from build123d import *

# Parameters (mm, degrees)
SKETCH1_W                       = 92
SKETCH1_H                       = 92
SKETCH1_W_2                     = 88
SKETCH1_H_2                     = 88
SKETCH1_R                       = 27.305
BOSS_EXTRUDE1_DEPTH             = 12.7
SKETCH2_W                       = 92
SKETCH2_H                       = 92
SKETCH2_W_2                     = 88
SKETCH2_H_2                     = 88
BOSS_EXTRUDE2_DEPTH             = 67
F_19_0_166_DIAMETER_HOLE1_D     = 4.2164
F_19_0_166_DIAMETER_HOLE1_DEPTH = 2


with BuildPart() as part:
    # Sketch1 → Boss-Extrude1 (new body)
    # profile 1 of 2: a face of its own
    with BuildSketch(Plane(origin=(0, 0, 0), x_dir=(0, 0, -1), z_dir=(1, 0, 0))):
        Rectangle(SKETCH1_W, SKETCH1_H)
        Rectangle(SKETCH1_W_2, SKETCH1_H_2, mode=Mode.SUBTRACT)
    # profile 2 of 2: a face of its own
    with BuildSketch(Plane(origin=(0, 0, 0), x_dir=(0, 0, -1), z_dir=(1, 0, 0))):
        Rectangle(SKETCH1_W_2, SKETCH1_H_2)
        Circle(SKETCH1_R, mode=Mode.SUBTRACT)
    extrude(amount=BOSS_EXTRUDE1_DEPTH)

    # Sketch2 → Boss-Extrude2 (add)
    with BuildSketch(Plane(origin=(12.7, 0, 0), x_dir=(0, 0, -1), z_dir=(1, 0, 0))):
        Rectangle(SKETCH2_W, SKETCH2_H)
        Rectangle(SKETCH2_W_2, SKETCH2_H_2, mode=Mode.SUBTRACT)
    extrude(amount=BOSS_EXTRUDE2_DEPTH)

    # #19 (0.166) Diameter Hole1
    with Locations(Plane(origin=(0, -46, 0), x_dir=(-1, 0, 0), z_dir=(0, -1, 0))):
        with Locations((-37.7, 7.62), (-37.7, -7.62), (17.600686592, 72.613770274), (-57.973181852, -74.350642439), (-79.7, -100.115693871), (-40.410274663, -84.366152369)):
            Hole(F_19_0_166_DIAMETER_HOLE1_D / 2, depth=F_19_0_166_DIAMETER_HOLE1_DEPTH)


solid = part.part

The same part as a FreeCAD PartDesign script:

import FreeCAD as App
import Part
import Sketcher
from FreeCAD import Vector

doc = App.newDocument("Part")
body = doc.addObject("PartDesign::Body", "Body")

sketch1 = doc.addObject("Sketcher::SketchObject", "Sketch")
body.addObject(sketch1)
sketch1.AttachmentSupport = (doc.YZ_Plane, [""])
sketch1.MapMode = "FlatFace"
sketch1.addGeometry([
    Part.LineSegment(Vector(46, 46, 0), Vector(-46, 46, 0)),
    Part.LineSegment(Vector(-46, 46, 0), Vector(-46, -46, 0)),
    Part.LineSegment(Vector(-46, -46, 0), Vector(46, -46, 0)),
    Part.LineSegment(Vector(46, -46, 0), Vector(46, 46, 0)),
    Part.Circle(Vector(0, 0, 0), Vector(0, 0, 1), 27),
], False)
sketch1.addConstraint([
    Sketcher.Constraint("Coincident", 0, 2, 1, 1),
    Sketcher.Constraint("Coincident", 1, 2, 2, 1),
    Sketcher.Constraint("Coincident", 2, 2, 3, 1),
    Sketcher.Constraint("Coincident", 3, 2, 0, 1),
    Sketcher.Constraint("Horizontal", 0),
    Sketcher.Constraint("Vertical", 1),
    Sketcher.Constraint("Horizontal", 2),
    Sketcher.Constraint("Vertical", 3),
    Sketcher.Constraint("Coincident", 4, 3, -1, 1),
    Sketcher.Constraint("Symmetric", 0, 2, 2, 2, -1, 1),
    Sketcher.Constraint("Equal", 2, 1),
    Sketcher.Constraint("Diameter", 4, 54.61),
    Sketcher.Constraint("DistanceX", 0, 2, 0, 1, 92.0),
])
pad1 = doc.addObject("PartDesign::Pad", "Pad")
body.addObject(pad1)
pad1.Profile = sketch1
pad1.Length = 12.7

sketch2 = doc.addObject("Sketcher::SketchObject", "Sketch001")
body.addObject(sketch2)
sketch2.AttachmentSupport = (doc.YZ_Plane, [""])
sketch2.MapMode = "FlatFace"
sketch2.AttachmentOffset = App.Placement(Vector(0, 0, 12.7), App.Rotation())
sketch2.addGeometry([
    Part.LineSegment(Vector(46, 46, 0), Vector(-46, 46, 0)),
    Part.LineSegment(Vector(-46, 46, 0), Vector(-46, -46, 0)),
    Part.LineSegment(Vector(-46, -46, 0), Vector(46, -46, 0)),
    Part.LineSegment(Vector(46, -46, 0), Vector(46, 46, 0)),
    Part.LineSegment(Vector(-44, -44, 0), Vector(-44, 44, 0)),
    Part.LineSegment(Vector(-44, 44, 0), Vector(44, 44, 0)),
    Part.LineSegment(Vector(44, 44, 0), Vector(44, -44, 0)),
    Part.LineSegment(Vector(44, -44, 0), Vector(-44, -44, 0)),
], False)
sketch2.addConstraint([
    Sketcher.Constraint("Coincident", 0, 2, 1, 1),
    Sketcher.Constraint("Coincident", 1, 2, 2, 1),
    Sketcher.Constraint("Coincident", 2, 2, 3, 1),
    Sketcher.Constraint("Coincident", 3, 2, 0, 1),
    Sketcher.Constraint("Coincident", 4, 2, 5, 1),
    Sketcher.Constraint("Coincident", 5, 2, 6, 1),
    Sketcher.Constraint("Coincident", 6, 2, 7, 1),
    Sketcher.Constraint("Coincident", 7, 2, 4, 1),
    Sketcher.Constraint("Horizontal", 0),
    Sketcher.Constraint("Vertical", 1),
    Sketcher.Constraint("Horizontal", 2),
    Sketcher.Constraint("Vertical", 3),
    Sketcher.Constraint("Vertical", 4),
    Sketcher.Constraint("Horizontal", 5),
    Sketcher.Constraint("Vertical", 6),
    Sketcher.Constraint("Horizontal", 7),
    Sketcher.Constraint("Symmetric", 0, 2, 2, 2, -1, 1),
    Sketcher.Constraint("Symmetric", 4, 2, 6, 2, -1, 1),
    Sketcher.Constraint("Equal", 2, 1),
    Sketcher.Constraint("Equal", 7, 4),
    Sketcher.Constraint("DistanceX", 0, 2, 0, 1, 92.0),
    Sketcher.Constraint("DistanceX", 5, 1, 5, 2, 88.0),
])
pad2 = doc.addObject("PartDesign::Pad", "Pad001")
body.addObject(pad2)
pad2.Profile = sketch2
pad2.Length = 67

sketch3 = doc.addObject("Sketcher::SketchObject", "Sketch002")
body.addObject(sketch3)
sketch3.AttachmentSupport = (doc.XZ_Plane, [""])
sketch3.MapMode = "FlatFace"
sketch3.AttachmentOffset = App.Placement(Vector(0, 0, 46), App.Rotation())
sketch3.addGeometry([
    Part.Circle(Vector(37.7, -7.6, 0), Vector(0, 0, 1), 2.1),
    Part.Circle(Vector(37.7, 7.6, 0), Vector(0, 0, 1), 2.1),
    Part.Circle(Vector(-17.6, -72.6, 0), Vector(0, 0, 1), 2.1),
    Part.Circle(Vector(58, 74.4, 0), Vector(0, 0, 1), 2.1),
    Part.Circle(Vector(79.7, 100.1, 0), Vector(0, 0, 1), 2.1),
    Part.Circle(Vector(40.4, 84.4, 0), Vector(0, 0, 1), 2.1),
], False)
sketch3.addConstraint([
    Sketcher.Constraint("Equal", 0, 1),
    Sketcher.Constraint("Equal", 1, 2),
    Sketcher.Constraint("Equal", 2, 3),
    Sketcher.Constraint("Equal", 3, 4),
    Sketcher.Constraint("Equal", 4, 5),
    Sketcher.Constraint("Symmetric", 0, 3, 1, 3, -1),
    Sketcher.Constraint("DistanceX", 1, 3, 4, 3, 42.0),
    Sketcher.Constraint("Diameter", 0, 4.2164),
    Sketcher.Constraint("DistanceX", -1, 1, 0, 3, 37.7),
    Sketcher.Constraint("DistanceY", 0, 3, -1, 1, 7.62),
    Sketcher.Constraint("DistanceY", 2, 3, -1, 1, 72.61377),
    Sketcher.Constraint("DistanceX", -1, 1, 3, 3, 57.973182),
    Sketcher.Constraint("DistanceX", 2, 3, 3, 3, 75.573868),
    Sketcher.Constraint("DistanceY", 3, 3, 4, 3, 25.765051),
    Sketcher.Constraint("DistanceY", 3, 3, 5, 3, 10.01551),
    Sketcher.Constraint("DistanceX", 2, 3, 5, 3, 58.010961),
    Sketcher.Constraint("DistanceY", -1, 1, 3, 3, 74.350642),
])
doc.recompute()
hole = doc.addObject("PartDesign::Hole", "Hole")
body.addObject(hole)
hole.Profile = sketch3
hole.ThreadType = "None"
hole.Diameter = 4.2164
hole.DepthType = "Dimension"
hole.Depth = 2
hole.DrillPoint = "Flat"

doc.recompute()
